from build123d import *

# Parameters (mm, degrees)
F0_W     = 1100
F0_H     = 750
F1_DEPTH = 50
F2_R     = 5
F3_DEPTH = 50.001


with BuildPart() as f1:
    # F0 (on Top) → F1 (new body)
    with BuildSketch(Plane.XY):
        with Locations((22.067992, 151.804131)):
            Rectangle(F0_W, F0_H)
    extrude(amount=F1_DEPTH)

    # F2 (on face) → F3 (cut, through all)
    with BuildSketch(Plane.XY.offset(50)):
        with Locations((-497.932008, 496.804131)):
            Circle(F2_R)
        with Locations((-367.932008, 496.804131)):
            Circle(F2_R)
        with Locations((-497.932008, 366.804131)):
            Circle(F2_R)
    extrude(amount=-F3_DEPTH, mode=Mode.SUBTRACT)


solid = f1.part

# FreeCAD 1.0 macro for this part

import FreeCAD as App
import Part
import Sketcher

V = App.Vector
Q = App.Units.Quantity


def add_polygon(sketch, points):
    """Adds a closed chain of lines whose ends are joined by coincident constraints."""
    first, n = sketch.GeometryCount, len(points)
    for a, b in zip(points, points[1:] + points[:1]):
        sketch.addGeometry(Part.LineSegment(App.Vector(*a, 0), App.Vector(*b, 0)), False)
    for i in range(n):
        sketch.addConstraint(Sketcher.Constraint("Coincident", first + i, 2, first + (i + 1) % n, 1))

doc = App.newDocument("Part")
params = doc.addObject("Spreadsheet::Sheet", "Params")
for row, (alias, value) in enumerate([
    ("sketch1_width", "1100 mm"),
    ("sketch1_height", "750 mm"),
    ("pad1_length", "50 mm"),
    ("sketch2_diameter", "10 mm"),
], start=1):
    params.set(f"A{row}", alias)
    params.set(f"B{row}", "=" + value)
    params.setAlias(f"B{row}", alias)

body = doc.addObject("PartDesign::Body", "Body")

# Sketch on XY plane
sketch1 = body.newObject("Sketcher::SketchObject", "Sketch")
sketch1.AttachmentSupport = (doc.getObject("XY_Plane"), [""])
sketch1.MapMode = "FlatFace"
add_polygon(sketch1, [(-528, 527), (-528, -223), (572, -223), (572, 527)])  # lines 0-3
sketch1.addConstraint(Sketcher.Constraint("Vertical", 0))
sketch1.addConstraint(Sketcher.Constraint("Horizontal", 1))
sketch1.addConstraint(Sketcher.Constraint("Vertical", 2))
sketch1.addConstraint(Sketcher.Constraint("Horizontal", 3))
sketch1.addConstraint(Sketcher.Constraint("DistanceX", 1, 1, 1, 2, Q("1100 mm")))
sketch1.addConstraint(Sketcher.Constraint("DistanceY", 0, 2, 0, 1, Q("750 mm")))
sketch1.addConstraint(Sketcher.Constraint("DistanceX", 0, 2, -1, 1, Q("527.932008 mm")))
sketch1.addConstraint(Sketcher.Constraint("DistanceY", 0, 2, -1, 1, Q("223.195869 mm")))
sketch1.setExpression("Constraints[8]", "Params.sketch1_width")
sketch1.setExpression("Constraints[9]", "Params.sketch1_height")
pad1 = body.newObject("PartDesign::Pad", "Pad")
pad1.Profile = sketch1
pad1.setExpression("Length", "Params.pad1_length")

# Sketch on XY plane
sketch2 = body.newObject("Sketcher::SketchObject", "Sketch001")
sketch2.AttachmentSupport = (doc.getObject("XY_Plane"), [""])
sketch2.MapMode = "FlatFace"
sketch2.AttachmentOffset = App.Placement(V(0, 0, 50), App.Rotation())
sketch2.addGeometry(Part.Circle(V(-498, 497, 0), V(0, 0, 1), 5), False)
sketch2.addGeometry(Part.Circle(V(-368, 497, 0), V(0, 0, 1), 5), False)
sketch2.addGeometry(Part.Circle(V(-498, 367, 0), V(0, 0, 1), 5), False)
sketch2.addConstraint(Sketcher.Constraint("Equal", 0, 1))
sketch2.addConstraint(Sketcher.Constraint("Equal", 1, 2))
sketch2.addConstraint(Sketcher.Constraint("Horizontal", 0, 3, 1, 3))
sketch2.addConstraint(Sketcher.Constraint("Vertical", 0, 3, 2, 3))
sketch2.addConstraint(Sketcher.Constraint("Diameter", 0, Q("10 mm")))
sketch2.addConstraint(Sketcher.Constraint("DistanceX", 0, 3, 1, 3, Q("130 mm")))
sketch2.addConstraint(Sketcher.Constraint("DistanceY", 2, 3, 0, 3, Q("130 mm")))
sketch2.addConstraint(Sketcher.Constraint("DistanceX", 0, 3, -1, 1, Q("497.932008 mm")))
sketch2.addConstraint(Sketcher.Constraint("DistanceY", -1, 1, 0, 3, Q("496.804131 mm")))
sketch2.setExpression("Constraints[4]", "Params.sketch2_diameter")
pocket1 = body.newObject("PartDesign::Pocket", "Pocket")
pocket1.Profile = sketch2
pocket1.Type = "ThroughAll"

doc.recompute()
